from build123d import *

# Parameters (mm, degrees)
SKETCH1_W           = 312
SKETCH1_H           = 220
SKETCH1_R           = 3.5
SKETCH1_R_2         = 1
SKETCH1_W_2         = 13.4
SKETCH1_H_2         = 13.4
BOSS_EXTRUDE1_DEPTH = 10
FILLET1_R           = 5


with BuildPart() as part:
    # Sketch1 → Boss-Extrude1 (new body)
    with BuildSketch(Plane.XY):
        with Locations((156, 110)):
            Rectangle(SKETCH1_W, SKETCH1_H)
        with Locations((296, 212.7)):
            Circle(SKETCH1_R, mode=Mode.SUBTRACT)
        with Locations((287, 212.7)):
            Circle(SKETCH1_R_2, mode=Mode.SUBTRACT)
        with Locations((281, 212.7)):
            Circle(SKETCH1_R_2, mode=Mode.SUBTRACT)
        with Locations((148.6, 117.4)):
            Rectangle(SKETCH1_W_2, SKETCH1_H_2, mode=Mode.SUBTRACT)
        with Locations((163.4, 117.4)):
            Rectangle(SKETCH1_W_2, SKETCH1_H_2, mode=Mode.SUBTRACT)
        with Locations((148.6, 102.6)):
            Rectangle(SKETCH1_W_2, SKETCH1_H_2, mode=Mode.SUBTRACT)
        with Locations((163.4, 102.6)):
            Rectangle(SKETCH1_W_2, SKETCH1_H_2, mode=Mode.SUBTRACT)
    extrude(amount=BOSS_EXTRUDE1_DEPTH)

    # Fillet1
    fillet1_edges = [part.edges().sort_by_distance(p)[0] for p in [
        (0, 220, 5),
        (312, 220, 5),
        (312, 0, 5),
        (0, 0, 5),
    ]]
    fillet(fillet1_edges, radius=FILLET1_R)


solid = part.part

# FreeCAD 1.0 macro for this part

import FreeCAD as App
import Part
import Sketcher
Q = App.Units.Quantity


def edges_at(feature, points):
    """Names of the edges that pass closest to the given points."""
    edges = feature.Shape.Edges
    near = lambda p: min(range(len(edges)), key=lambda i: edges[i].distToShape(Part.Vertex(*p))[0])
    return sorted({f"Edge{near(p) + 1}" for p in points})


def add_polygon(sketch, points):
    """Adds a closed chain of lines whose ends are joined by coincident constraints."""
    first, n = sketch.GeometryCount, len(points)
    for a, b in zip(points, points[1:] + points[:1]):
        sketch.addGeometry(Part.LineSegment(App.Vector(*a, 0), App.Vector(*b, 0)), False)
    for i in range(n):
        sketch.addConstraint(Sketcher.Constraint("Coincident", first + i, 2, first + (i + 1) % n, 1))

doc = App.newDocument("Part")
body = doc.addObject("PartDesign::Body", "Body")

# Sketch on XY plane
sketch1 = body.newObject("Sketcher::SketchObject", "Sketch")
sketch1.AttachmentSupport = (doc.getObject("XY_Plane"), [""])
sketch1.MapMode = "FlatFace"
add_polygon(sketch1, [(0, 220), (0, 0), (312, 0), (312, 220)])  # lines 0-3
add_polygon(sketch1, [(155.3, 95.9), (141.9, 95.9), (141.9, 109.3), (155.3, 109.3)])  # lines 4-7
add_polygon(sketch1, [(170.1, 95.9), (156.7, 95.9), (156.7, 109.3), (170.1, 109.3)])  # lines 8-11
add_polygon(sketch1, [(155.3, 110.7), (141.9, 110.7), (141.9, 124.1), (155.3, 124.1)])  # lines 12-15
add_polygon(sketch1, [(170.1, 110.7), (156.7, 110.7), (156.7, 124.1), (170.1, 124.1)])  # lines 16-19
sketch1.addGeometry(Part.Circle(App.Vector(281, 212.7, 0), App.Vector(0, 0, 1), 1), False)  # 20
sketch1.addGeometry(Part.Circle(App.Vector(287, 212.7, 0), App.Vector(0, 0, 1), 1), False)  # 21
sketch1.addGeometry(Part.Circle(App.Vector(296, 212.7, 0), App.Vector(0, 0, 1), 3.5), False)  # 22
sketch1.addConstraint([
    Sketcher.Constraint("Vertical", 0),
    Sketcher.Constraint("Horizontal", 1),
    Sketcher.Constraint("Vertical", 2),
    Sketcher.Constraint("Horizontal", 3),
    Sketcher.Constraint("Horizontal", 4),
    Sketcher.Constraint("Vertical", 5),
    Sketcher.Constraint("Horizontal", 6),
    Sketcher.Constraint("Vertical", 7),
    Sketcher.Constraint("Horizontal", 8),
    Sketcher.Constraint("Vertical", 9),
    Sketcher.Constraint("Horizontal", 10),
    Sketcher.Constraint("Vertical", 11),
    Sketcher.Constraint("Horizontal", 12),
    Sketcher.Constraint("Vertical", 13),
    Sketcher.Constraint("Horizontal", 14),
    Sketcher.Constraint("Vertical", 15),
    Sketcher.Constraint("Horizontal", 16),
    Sketcher.Constraint("Vertical", 17),
    Sketcher.Constraint("Horizontal", 18),
    Sketcher.Constraint("Vertical", 19),
    Sketcher.Constraint("Coincident", 0, 2, -1, 1),
    Sketcher.Constraint("Equal", 20, 21),
    Sketcher.Constraint("Horizontal", 20, 3, 21, 3),
    Sketcher.Constraint("Horizontal", 21, 3, 22, 3),
    Sketcher.Constraint("Horizontal", 7, 2, 8, 2),
    Sketcher.Constraint("Horizontal", 6, 2, 9, 2),
    Sketcher.Constraint("Horizontal", 15, 2, 16, 2),
    Sketcher.Constraint("Horizontal", 14, 2, 17, 2),
    Sketcher.Constraint("Vertical", 5, 2, 12, 2),
    Sketcher.Constraint("Vertical", 7, 2, 14, 2),
    Sketcher.Constraint("Vertical", 9, 2, 16, 2),
    Sketcher.Constraint("Vertical", 11, 2, 18, 2),
    Sketcher.Constraint("Equal", 6, 8),
    Sketcher.Constraint("Equal", 18, 5),
    Sketcher.Constraint("Equal", 11, 13),
    Sketcher.Constraint("Diameter", 20, Q("2 mm")),
    Sketcher.Constraint("Diameter", 22, Q("7 mm")),
    Sketcher.Constraint("DistanceX", 1, 1, 1, 2, Q("312 mm")),
    Sketcher.Constraint("DistanceY", 0, 2, 0, 1, Q("220 mm")),
    Sketcher.Constraint("DistanceX", 4, 2, 4, 1, Q("13.4 mm")),
    Sketcher.Constraint("DistanceX", -1, 1, 20, 3, Q("281 mm")),
    Sketcher.Constraint("DistanceX", -1, 1, 21, 3, Q("287 mm")),
    Sketcher.Constraint("DistanceX", -1, 1, 22, 3, Q("296 mm")),
    Sketcher.Constraint("DistanceY", -1, 1, 20, 3, Q("212.7 mm")),
    Sketcher.Constraint("DistanceX", -1, 1, 4, 2, Q("141.9 mm")),
    Sketcher.Constraint("DistanceY", -1, 1, 4, 2, Q("95.9 mm")),
    Sketcher.Constraint("DistanceX", -1, 1, 8, 2, Q("156.7 mm")),
    Sketcher.Constraint("DistanceY", -1, 1, 12, 2, Q("110.7 mm")),
])
pad1 = body.newObject("PartDesign::Pad", "Pad")
pad1.Profile = sketch1
pad1.Length = 10
doc.recompute()

fillet = body.newObject("PartDesign::Fillet", "Fillet")
fillet.Base = (pad1, edges_at(pad1, [
    (0, 220, 5),
    (312, 220, 5),
    (312, 0, 5),
    (0, 0, 5),
]))
fillet.Radius = 5

doc.recompute()
